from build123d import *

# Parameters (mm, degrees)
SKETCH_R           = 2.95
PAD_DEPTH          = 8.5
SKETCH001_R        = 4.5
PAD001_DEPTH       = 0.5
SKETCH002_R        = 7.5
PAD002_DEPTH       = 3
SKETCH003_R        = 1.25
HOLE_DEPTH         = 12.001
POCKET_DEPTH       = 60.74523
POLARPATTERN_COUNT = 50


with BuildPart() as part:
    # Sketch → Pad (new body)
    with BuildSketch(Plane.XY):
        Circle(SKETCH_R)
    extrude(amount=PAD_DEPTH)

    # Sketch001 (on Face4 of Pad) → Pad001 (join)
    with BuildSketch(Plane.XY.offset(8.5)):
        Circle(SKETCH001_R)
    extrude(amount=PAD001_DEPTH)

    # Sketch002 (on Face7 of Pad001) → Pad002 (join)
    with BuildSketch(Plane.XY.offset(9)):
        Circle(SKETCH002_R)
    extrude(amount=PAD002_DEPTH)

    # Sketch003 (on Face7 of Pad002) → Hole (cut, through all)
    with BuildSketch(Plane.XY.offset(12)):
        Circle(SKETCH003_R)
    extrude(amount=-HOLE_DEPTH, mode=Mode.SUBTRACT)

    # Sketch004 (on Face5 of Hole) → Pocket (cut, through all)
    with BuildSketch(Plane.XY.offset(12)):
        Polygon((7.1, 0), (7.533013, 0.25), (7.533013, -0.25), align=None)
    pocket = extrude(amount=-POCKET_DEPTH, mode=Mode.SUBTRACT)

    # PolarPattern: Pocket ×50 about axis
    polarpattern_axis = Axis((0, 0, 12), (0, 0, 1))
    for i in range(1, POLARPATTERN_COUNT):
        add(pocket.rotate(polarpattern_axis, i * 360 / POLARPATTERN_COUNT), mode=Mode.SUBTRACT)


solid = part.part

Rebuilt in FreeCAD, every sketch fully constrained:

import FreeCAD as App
import Part
import Sketcher
from FreeCAD import Vector
Q = App.Units.Quantity


def add_polygon(sketch, points):
    """Adds a closed chain of lines whose ends are joined by coincident constraints."""
    first, n = sketch.GeometryCount, len(points)
    for a, b in zip(points, points[1:] + points[:1]):
        sketch.addGeometry(Part.LineSegment(App.Vector(*a, 0), App.Vector(*b, 0)), False)
    for i in range(n):
        sketch.addConstraint(Sketcher.Constraint("Coincident", first + i, 2, first + (i + 1) % n, 1))

doc = App.newDocument("Part")
body = doc.addObject("PartDesign::Body", "Body")

sketch1 = body.newObject("Sketcher::SketchObject", "Sketch")
sketch1.AttachmentSupport = (doc.getObject("XY_Plane"), [""])
sketch1.MapMode = "FlatFace"
sketch1.addGeometry(Part.Circle(Vector(0, 0, 0), Vector(0, 0, 1), 3), False)
sketch1.addConstraint([
    Sketcher.Constraint("Coincident", 0, 3, -1, 1),
    Sketcher.Constraint("Diameter", 0, 5.9),
])
pad1 = body.newObject("PartDesign::Pad", "Pad")
pad1.Profile = sketch1
pad1.Length = 8.5

sketch2 = body.newObject("Sketcher::SketchObject", "Sketch001")
sketch2.AttachmentSupport = (doc.getObject("XY_Plane"), [""])
sketch2.MapMode = "FlatFace"
sketch2.AttachmentOffset = App.Placement(Vector(0, 0, 8.5), App.Rotation())
sketch2.addGeometry(Part.Circle(Vector(0, 0, 0), Vector(0, 0, 1), 4.5), False)
sketch2.addConstraint([
    Sketcher.Constraint("Coincident", 0, 3, -1, 1),
    Sketcher.Constraint("Diameter", 0, 9.0),
])
pad2 = body.newObject("PartDesign::Pad", "Pad001")
pad2.Profile = sketch2
pad2.Length = 0.5

sketch3 = body.newObject("Sketcher::SketchObject", "Sketch002")
sketch3.AttachmentSupport = (doc.getObject("XY_Plane"), [""])
sketch3.MapMode = "FlatFace"
sketch3.AttachmentOffset = App.Placement(Vector(0, 0, 9), App.Rotation())
sketch3.addGeometry(Part.Circle(Vector(0, 0, 0), Vector(0, 0, 1), 8), False)
sketch3.addConstraint([
    Sketcher.Constraint("Coincident", 0, 3, -1, 1),
    Sketcher.Constraint("Diameter", 0, 15.0),
])
pad3 = body.newObject("PartDesign::Pad", "Pad002")
pad3.Profile = sketch3
pad3.Length = 3

sketch4 = body.newObject("Sketcher::SketchObject", "Sketch003")
sketch4.AttachmentSupport = (doc.getObject("XY_Plane"), [""])
sketch4.MapMode = "FlatFace"
sketch4.AttachmentOffset = App.Placement(Vector(0, 0, 12), App.Rotation())
sketch4.addGeometry(Part.Circle(Vector(0, 0, 0), Vector(0, 0, 1), 1.2), False)
sketch4.addConstraint([
    Sketcher.Constraint("Coincident", 0, 3, -1, 1),
    Sketcher.Constraint("Diameter", 0, 2.5),
])
pocket1 = body.newObject("PartDesign::Pocket", "Pocket")
pocket1.Profile = sketch4
pocket1.Type = "ThroughAll"

sketch5 = body.newObject("Sketcher::SketchObject", "Sketch004")
sketch5.AttachmentSupport = (doc.getObject("XY_Plane"), [""])
sketch5.MapMode = "FlatFace"
sketch5.AttachmentOffset = App.Placement(Vector(0, 0, 12), App.Rotation())
add_polygon(sketch5, [(7.5, 0.2), (7.1, 0), (7.5, -0.2)])
sketch5.addConstraint([
    Sketcher.Constraint("Vertical", 2),
    Sketcher.Constraint("PointOnObject", 0, 2, -1),
    Sketcher.Constraint("Equal", 0, 1),
    Sketcher.Constraint("Angle", 0, Q("-150.000017 deg")),
    Sketcher.Constraint("DistanceY", 2, 1, 2, 2, 0.5),
    Sketcher.Constraint("DistanceX", -1, 1, 0, 2, 7.1),
])
pocket2 = body.newObject("PartDesign::Pocket", "Pocket001")
pocket2.Profile = sketch5
pocket2.Type = "ThroughAll"
doc.recompute()

polarpattern = body.newObject("PartDesign::PolarPattern", "PolarPattern")
polarpattern.Originals = [pocket2]
polarpattern.Axis = (doc.getObject("Z_Axis"), [""])
polarpattern.Angle = 360
polarpattern.Occurrences = 50
body.Tip = polarpattern

doc.recompute()
